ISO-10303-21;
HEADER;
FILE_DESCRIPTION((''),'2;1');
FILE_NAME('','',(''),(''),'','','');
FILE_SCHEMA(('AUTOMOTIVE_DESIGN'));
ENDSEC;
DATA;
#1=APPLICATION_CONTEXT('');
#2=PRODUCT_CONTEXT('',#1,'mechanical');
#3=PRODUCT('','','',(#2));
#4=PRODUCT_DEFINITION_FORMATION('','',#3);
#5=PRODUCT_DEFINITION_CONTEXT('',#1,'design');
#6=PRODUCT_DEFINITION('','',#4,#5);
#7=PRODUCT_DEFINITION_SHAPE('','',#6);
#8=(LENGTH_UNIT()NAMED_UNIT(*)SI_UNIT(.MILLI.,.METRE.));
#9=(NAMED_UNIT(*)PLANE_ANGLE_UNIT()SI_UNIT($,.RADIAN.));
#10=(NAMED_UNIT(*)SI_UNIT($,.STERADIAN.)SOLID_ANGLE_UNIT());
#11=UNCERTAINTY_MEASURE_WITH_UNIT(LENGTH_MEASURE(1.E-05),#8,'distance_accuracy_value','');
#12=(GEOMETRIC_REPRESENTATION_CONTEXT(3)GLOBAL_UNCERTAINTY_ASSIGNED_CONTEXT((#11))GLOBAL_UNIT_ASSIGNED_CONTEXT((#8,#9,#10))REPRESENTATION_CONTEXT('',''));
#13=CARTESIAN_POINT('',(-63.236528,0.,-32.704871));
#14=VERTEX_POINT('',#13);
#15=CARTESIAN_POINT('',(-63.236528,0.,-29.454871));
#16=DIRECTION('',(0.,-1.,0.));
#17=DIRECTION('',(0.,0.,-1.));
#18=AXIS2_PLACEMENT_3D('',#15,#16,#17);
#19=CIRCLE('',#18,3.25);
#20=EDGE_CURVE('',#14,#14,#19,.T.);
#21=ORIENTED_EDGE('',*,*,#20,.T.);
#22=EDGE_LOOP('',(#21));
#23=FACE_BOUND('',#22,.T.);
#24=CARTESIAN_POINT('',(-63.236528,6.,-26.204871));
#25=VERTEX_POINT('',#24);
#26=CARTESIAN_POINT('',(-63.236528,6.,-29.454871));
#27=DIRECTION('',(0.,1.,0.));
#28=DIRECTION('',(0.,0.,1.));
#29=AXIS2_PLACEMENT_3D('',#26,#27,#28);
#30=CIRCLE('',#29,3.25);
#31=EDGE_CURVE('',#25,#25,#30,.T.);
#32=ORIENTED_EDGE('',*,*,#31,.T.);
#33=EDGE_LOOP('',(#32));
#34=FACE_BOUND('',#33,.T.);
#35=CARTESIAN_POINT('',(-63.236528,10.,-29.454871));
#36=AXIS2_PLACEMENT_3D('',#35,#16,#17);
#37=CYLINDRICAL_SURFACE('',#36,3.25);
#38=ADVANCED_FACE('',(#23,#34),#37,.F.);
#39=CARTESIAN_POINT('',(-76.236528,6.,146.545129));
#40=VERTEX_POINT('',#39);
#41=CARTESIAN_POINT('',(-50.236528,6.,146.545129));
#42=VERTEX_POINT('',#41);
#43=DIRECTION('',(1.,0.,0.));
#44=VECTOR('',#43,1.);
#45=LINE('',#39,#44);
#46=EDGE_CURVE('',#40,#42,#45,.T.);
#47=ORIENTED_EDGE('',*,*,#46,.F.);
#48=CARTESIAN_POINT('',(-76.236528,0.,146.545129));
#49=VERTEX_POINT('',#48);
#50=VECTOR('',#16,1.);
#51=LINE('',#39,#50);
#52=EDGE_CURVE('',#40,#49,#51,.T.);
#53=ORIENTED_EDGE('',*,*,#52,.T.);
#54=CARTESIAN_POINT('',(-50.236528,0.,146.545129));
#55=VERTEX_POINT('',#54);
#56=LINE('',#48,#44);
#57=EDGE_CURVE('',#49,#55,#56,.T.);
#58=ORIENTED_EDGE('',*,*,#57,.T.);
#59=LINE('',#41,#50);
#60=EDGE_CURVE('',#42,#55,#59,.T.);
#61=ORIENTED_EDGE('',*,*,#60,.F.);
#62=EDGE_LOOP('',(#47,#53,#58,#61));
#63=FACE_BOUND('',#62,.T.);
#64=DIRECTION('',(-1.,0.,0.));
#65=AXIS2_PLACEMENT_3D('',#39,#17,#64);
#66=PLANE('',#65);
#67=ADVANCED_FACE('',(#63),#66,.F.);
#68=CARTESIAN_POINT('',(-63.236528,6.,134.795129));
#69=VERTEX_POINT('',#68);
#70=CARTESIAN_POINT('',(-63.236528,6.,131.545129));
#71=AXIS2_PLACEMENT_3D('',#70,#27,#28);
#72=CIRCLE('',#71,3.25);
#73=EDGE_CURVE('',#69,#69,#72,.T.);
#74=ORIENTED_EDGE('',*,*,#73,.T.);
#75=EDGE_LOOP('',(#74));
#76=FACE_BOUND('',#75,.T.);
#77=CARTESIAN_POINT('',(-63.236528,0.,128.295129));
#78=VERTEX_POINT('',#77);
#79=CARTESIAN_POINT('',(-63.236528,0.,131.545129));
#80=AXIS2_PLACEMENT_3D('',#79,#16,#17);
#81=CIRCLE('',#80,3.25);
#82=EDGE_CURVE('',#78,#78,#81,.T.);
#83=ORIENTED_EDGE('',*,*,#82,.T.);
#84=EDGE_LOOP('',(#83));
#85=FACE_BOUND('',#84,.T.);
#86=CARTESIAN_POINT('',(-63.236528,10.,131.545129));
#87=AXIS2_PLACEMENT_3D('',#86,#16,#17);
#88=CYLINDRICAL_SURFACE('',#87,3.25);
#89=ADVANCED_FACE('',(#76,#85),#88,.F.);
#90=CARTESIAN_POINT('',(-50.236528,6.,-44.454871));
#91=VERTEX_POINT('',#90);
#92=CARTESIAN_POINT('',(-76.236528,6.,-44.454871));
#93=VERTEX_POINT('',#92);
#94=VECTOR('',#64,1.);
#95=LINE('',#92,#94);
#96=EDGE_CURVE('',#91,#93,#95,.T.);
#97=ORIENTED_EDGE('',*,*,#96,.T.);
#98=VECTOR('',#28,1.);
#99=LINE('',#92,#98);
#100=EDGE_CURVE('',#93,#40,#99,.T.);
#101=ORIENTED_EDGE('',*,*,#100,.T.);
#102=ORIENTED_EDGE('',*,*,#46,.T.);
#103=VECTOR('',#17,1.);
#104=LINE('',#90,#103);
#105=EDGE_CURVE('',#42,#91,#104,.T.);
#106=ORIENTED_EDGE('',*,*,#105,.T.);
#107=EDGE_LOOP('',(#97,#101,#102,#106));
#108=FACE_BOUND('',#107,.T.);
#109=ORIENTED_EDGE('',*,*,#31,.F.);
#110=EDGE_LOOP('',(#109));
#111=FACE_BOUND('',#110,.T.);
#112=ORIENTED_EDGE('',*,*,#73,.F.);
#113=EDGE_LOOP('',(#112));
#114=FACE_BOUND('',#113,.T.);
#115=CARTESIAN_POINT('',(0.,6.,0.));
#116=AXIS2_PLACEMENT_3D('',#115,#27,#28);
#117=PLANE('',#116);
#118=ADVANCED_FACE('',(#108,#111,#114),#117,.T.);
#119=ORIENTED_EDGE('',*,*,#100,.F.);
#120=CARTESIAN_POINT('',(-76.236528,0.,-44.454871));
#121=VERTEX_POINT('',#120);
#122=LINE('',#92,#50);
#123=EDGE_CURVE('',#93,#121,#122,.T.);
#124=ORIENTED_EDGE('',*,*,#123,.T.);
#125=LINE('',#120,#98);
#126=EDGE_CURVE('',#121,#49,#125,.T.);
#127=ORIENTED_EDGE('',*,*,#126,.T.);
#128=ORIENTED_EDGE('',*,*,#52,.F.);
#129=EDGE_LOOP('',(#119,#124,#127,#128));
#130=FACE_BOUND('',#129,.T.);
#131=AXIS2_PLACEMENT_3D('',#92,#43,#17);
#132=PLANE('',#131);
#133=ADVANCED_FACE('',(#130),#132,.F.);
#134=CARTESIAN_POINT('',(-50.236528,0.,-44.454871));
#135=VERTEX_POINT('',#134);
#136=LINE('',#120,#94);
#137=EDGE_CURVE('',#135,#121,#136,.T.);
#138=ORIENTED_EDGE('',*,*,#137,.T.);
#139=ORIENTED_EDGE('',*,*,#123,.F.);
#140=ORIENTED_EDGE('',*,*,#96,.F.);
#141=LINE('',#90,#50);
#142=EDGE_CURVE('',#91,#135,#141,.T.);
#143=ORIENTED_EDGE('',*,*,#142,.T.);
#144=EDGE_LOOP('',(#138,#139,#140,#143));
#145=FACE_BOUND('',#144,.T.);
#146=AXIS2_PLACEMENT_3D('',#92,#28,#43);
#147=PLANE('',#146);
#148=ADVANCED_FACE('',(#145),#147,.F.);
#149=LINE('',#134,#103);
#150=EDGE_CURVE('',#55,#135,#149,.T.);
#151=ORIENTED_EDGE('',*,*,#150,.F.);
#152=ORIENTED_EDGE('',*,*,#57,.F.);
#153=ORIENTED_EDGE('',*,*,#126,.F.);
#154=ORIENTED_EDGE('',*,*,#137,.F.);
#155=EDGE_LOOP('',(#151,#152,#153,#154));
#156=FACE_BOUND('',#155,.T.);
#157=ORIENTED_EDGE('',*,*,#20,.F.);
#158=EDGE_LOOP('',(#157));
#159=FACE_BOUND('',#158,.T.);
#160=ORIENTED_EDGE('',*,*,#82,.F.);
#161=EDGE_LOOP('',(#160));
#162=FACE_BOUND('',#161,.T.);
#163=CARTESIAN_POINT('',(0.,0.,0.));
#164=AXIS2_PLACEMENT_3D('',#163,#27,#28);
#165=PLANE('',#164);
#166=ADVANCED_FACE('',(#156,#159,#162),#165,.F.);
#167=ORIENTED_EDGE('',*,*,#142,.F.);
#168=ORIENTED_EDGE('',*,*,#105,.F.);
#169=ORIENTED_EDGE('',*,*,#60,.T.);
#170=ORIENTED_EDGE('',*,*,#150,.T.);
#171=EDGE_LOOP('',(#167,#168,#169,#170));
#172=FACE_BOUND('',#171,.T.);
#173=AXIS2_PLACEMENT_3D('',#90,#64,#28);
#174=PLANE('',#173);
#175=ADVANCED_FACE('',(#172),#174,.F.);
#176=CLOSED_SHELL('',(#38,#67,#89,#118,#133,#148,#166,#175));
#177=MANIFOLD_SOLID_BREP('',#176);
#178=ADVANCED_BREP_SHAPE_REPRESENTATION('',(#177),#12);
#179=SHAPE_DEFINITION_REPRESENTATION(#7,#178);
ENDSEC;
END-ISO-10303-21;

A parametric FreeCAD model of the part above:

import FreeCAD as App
import Part
import Sketcher

V = App.Vector


def add_polygon(sketch, points):
    """Adds a closed chain of lines whose ends are joined by coincident constraints."""
    first, n = sketch.GeometryCount, len(points)
    for a, b in zip(points, points[1:] + points[:1]):
        sketch.addGeometry(Part.LineSegment(App.Vector(*a, 0), App.Vector(*b, 0)), False)
    for i in range(n):
        sketch.addConstraint(Sketcher.Constraint("Coincident", first + i, 2, first + (i + 1) % n, 1))

doc = App.newDocument("Part")
body = doc.addObject("PartDesign::Body", "Body")

# Sketch on XZ plane
sketch1 = body.newObject("Sketcher::SketchObject", "Sketch")
sketch1.AttachmentSupport = (doc.getObject("XZ_Plane"), [""])
sketch1.MapMode = "FlatFace"
add_polygon(sketch1, [(-76, -44), (-76, 147), (-50, 147), (-50, -44)])  # lines 0-3
sketch1.addConstraint(Sketcher.Constraint("Vertical", 0))
sketch1.addConstraint(Sketcher.Constraint("Horizontal", 1))
sketch1.addConstraint(Sketcher.Constraint("Vertical", 2))
sketch1.addConstraint(Sketcher.Constraint("Horizontal", 3))
sketch1.addConstraint(Sketcher.Constraint("DistanceX", 1, 1, 1, 2, 26.0))
sketch1.addConstraint(Sketcher.Constraint("DistanceY", 0, 1, 0, 2, 191.0))
sketch1.addConstraint(Sketcher.Constraint("DistanceY", -1, 1, 0, 2, 146.545129))
sketch1.addConstraint(Sketcher.Constraint("DistanceX", 0, 2, -1, 1, 76.236528))
pad1 = body.newObject("PartDesign::Pad", "Pad")
pad1.Profile = sketch1
pad1.Length = 6
pad1.Reversed = True

# Sketch on XZ plane
sketch2 = body.newObject("Sketcher::SketchObject", "Sketch001")
sketch2.AttachmentSupport = (doc.getObject("XZ_Plane"), [""])
sketch2.MapMode = "FlatFace"
sketch2.addGeometry(Part.Circle(V(-63.2, 131.5, 0), V(0, 0, 1), 3.2), False)
sketch2.addGeometry(Part.Circle(V(-63.2, -29.5, 0), V(0, 0, 1), 3.2), False)
sketch2.addConstraint(Sketcher.Constraint("Equal", 0, 1))
sketch2.addConstraint(Sketcher.Constraint("Vertical", 0, 3, 1, 3))
sketch2.addConstraint(Sketcher.Constraint("Diameter", 0, 6.5))
sketch2.addConstraint(Sketcher.Constraint("DistanceY", 1, 3, 0, 3, 161.0))
sketch2.addConstraint(Sketcher.Constraint("DistanceY", -1, 1, 0, 3, 131.545129))
sketch2.addConstraint(Sketcher.Constraint("DistanceX", 0, 3, -1, 1, 63.236528))
pocket1 = body.newObject("PartDesign::Pocket", "Pocket")
pocket1.Profile = sketch2
pocket1.Length = 10

doc.recompute()
